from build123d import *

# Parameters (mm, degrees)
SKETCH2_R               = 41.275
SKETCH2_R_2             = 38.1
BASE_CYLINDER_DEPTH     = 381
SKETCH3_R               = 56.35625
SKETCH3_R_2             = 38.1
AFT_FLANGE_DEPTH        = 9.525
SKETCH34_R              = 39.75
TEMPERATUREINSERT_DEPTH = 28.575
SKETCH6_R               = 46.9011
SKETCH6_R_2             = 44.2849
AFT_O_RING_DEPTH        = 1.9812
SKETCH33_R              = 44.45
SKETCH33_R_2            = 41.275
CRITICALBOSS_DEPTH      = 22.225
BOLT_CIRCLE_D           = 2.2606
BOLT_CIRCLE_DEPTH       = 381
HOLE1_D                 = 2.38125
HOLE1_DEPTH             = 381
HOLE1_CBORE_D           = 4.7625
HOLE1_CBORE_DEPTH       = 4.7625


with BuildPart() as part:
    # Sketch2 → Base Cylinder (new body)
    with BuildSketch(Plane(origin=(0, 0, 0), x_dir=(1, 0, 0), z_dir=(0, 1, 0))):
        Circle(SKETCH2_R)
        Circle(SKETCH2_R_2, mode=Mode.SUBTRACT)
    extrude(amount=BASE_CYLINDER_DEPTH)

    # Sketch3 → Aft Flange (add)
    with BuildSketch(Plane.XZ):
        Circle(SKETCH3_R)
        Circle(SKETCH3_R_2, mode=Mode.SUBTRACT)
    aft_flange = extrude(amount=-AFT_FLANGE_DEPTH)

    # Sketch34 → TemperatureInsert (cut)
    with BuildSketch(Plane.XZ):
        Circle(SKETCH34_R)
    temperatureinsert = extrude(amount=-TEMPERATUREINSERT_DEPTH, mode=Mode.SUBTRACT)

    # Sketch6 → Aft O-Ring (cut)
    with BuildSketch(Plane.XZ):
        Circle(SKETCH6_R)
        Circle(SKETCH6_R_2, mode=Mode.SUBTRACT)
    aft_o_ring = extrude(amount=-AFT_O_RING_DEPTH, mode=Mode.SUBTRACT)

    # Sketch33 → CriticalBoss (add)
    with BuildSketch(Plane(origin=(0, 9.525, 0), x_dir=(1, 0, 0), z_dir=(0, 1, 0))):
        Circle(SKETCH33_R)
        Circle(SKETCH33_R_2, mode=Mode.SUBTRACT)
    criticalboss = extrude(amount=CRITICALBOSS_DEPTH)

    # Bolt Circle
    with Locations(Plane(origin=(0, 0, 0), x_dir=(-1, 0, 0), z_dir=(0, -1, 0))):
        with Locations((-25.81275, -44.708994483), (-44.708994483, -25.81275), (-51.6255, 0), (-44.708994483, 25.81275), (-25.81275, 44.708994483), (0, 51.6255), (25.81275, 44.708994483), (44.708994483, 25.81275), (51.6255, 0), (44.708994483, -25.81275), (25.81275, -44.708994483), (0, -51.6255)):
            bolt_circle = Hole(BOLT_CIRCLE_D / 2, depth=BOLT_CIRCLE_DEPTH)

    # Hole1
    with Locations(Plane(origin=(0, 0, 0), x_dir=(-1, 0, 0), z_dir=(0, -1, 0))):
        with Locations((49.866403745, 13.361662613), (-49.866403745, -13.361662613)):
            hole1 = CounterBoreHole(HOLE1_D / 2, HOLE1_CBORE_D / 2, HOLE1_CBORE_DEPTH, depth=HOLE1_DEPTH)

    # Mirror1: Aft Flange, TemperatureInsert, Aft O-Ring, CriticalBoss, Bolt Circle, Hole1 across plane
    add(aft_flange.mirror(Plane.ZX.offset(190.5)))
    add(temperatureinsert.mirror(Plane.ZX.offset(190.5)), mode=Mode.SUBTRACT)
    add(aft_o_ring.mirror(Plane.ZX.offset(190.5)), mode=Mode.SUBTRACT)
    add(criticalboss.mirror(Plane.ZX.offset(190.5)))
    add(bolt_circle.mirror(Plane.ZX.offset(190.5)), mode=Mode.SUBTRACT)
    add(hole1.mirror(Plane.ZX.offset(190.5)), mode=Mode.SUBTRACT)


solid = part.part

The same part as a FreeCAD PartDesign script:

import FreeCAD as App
import Part
import Sketcher
Q = App.Units.Quantity

doc = App.newDocument("Part")
params = doc.addObject("Spreadsheet::Sheet", "Params")
for row, (alias, value) in enumerate([
    ("sketch1_diameter", "3 in"),
    ("sketch1_diameter2", "3.25 in"),
    ("pad1_length", "15 in"),
    ("sketch2_diameter", "3 in"),
    ("sketch2_diameter2", "4.4375 in"),
    ("pad2_length", "0.375 in"),
    ("pocket1_length", "1.125 in"),
    ("sketch4_diameter", "3.693 in"),
    ("sketch4_diameter2", "3.487 in"),
    ("pocket2_length", "0.078 in"),
    ("sketch5_diameter", "3.5 in"),
    ("sketch5_diameter2", "3.25 in"),
    ("pad3_length", "0.875 in"),
    ("sketch6_diameter", "0.089 in"),
    ("hole_diameter", "0.089 in"),
    ("hole_depth", "15 in"),
    ("sketch7_diameter", "0.09375 in"),
    ("hole2_diameter", "0.09375 in"),
    ("hole2_depth", "15 in"),
    ("hole2_cbore_diameter", "0.1875 in"),
    ("hole2_cbore_depth", "0.1875 in"),
], start=1):
    params.set(f"A{row}", alias)
    params.set(f"B{row}", "=" + value)
    params.setAlias(f"B{row}", alias)

body = doc.addObject("PartDesign::Body", "Body")

# Sketch on XZ plane
sketch1 = doc.addObject("Sketcher::SketchObject", "Sketch")
body.addObject(sketch1)
sketch1.AttachmentSupport = (doc.XZ_Plane, [""])
sketch1.MapMode = "FlatFace"
sketch1.addGeometry(Part.Circle(App.Vector(0, 0, 0), App.Vector(0, 0, 1), 41), False)
sketch1.addGeometry(Part.Circle(App.Vector(0, 0, 0), App.Vector(0, 0, 1), 38), False)
sketch1.addConstraint(Sketcher.Constraint("Coincident", 0, 3, -1, 1))
sketch1.addConstraint(Sketcher.Constraint("Coincident", 1, 3, -1, 1))
sketch1.addConstraint(Sketcher.Constraint("Diameter", 1, Q("3 in")))
sketch1.addConstraint(Sketcher.Constraint("Diameter", 0, Q("3.25 in")))
sketch1.setExpression("Constraints[2]", "Params.sketch1_diameter")
sketch1.setExpression("Constraints[3]", "Params.sketch1_diameter2")
pad1 = doc.addObject("PartDesign::Pad", "Pad")
body.addObject(pad1)
pad1.Profile = sketch1
pad1.setExpression("Length", "Params.pad1_length")
pad1.Reversed = True

# Sketch on XZ plane
sketch2 = doc.addObject("Sketcher::SketchObject", "Sketch001")
body.addObject(sketch2)
sketch2.AttachmentSupport = (doc.XZ_Plane, [""])
sketch2.MapMode = "FlatFace"
sketch2.addGeometry(Part.Circle(App.Vector(0, 0, 0), App.Vector(0, 0, 1), 56), False)
sketch2.addGeometry(Part.Circle(App.Vector(0, 0, 0), App.Vector(0, 0, 1), 38), False)
sketch2.addConstraint(Sketcher.Constraint("Coincident", 0, 3, -1, 1))
sketch2.addConstraint(Sketcher.Constraint("Coincident", 1, 3, -1, 1))
sketch2.addConstraint(Sketcher.Constraint("Diameter", 1, Q("3 in")))
sketch2.addConstraint(Sketcher.Constraint("Diameter", 0, Q("4.4375 in")))
sketch2.setExpression("Constraints[2]", "Params.sketch2_diameter")
sketch2.setExpression("Constraints[3]", "Params.sketch2_diameter2")
pad2 = doc.addObject("PartDesign::Pad", "Pad001")
body.addObject(pad2)
pad2.Profile = sketch2
pad2.setExpression("Length", "Params.pad2_length")
pad2.Reversed = True

# Sketch on XZ plane
sketch3 = doc.addObject("Sketcher::SketchObject", "Sketch002")
body.addObject(sketch3)
sketch3.AttachmentSupport = (doc.XZ_Plane, [""])
sketch3.MapMode = "FlatFace"
sketch3.addGeometry(Part.Circle(App.Vector(0, 0, 0), App.Vector(0, 0, 1), 40), False)
sketch3.addConstraint(Sketcher.Constraint("Coincident", 0, 3, -1, 1))
sketch3.addConstraint(Sketcher.Constraint("Diameter", 0, Q("79.5 mm")))
pocket1 = doc.addObject("PartDesign::Pocket", "Pocket")
body.addObject(pocket1)
pocket1.Profile = sketch3
pocket1.setExpression("Length", "Params.pocket1_length")

# Sketch on XZ plane
sketch4 = doc.addObject("Sketcher::SketchObject", "Sketch003")
body.addObject(sketch4)
sketch4.AttachmentSupport = (doc.XZ_Plane, [""])
sketch4.MapMode = "FlatFace"
sketch4.addGeometry(Part.Circle(App.Vector(0, 0, 0), App.Vector(0, 0, 1), 47), False)
sketch4.addGeometry(Part.Circle(App.Vector(0, 0, 0), App.Vector(0, 0, 1), 44), False)
sketch4.addConstraint(Sketcher.Constraint("Coincident", 0, 3, -1, 1))
sketch4.addConstraint(Sketcher.Constraint("Coincident", 1, 3, -1, 1))
sketch4.addConstraint(Sketcher.Constraint("Diameter", 0, Q("3.693 in")))
sketch4.addConstraint(Sketcher.Constraint("Diameter", 1, Q("3.487 in")))
sketch4.setExpression("Constraints[2]", "Params.sketch4_diameter")
sketch4.setExpression("Constraints[3]", "Params.sketch4_diameter2")
pocket2 = doc.addObject("PartDesign::Pocket", "Pocket001")
body.addObject(pocket2)
pocket2.Profile = sketch4
pocket2.setExpression("Length", "Params.pocket2_length")

# Sketch on XZ plane
sketch5 = doc.addObject("Sketcher::SketchObject", "Sketch004")
body.addObject(sketch5)
sketch5.AttachmentSupport = (doc.XZ_Plane, [""])
sketch5.MapMode = "FlatFace"
sketch5.AttachmentOffset = App.Placement(App.Vector(0, 0, -0.375 * 25.4), App.Rotation())
sketch5.addGeometry(Part.Circle(App.Vector(0, 0, 0), App.Vector(0, 0, 1), 44), False)
sketch5.addGeometry(Part.Circle(App.Vector(0, 0, 0), App.Vector(0, 0, 1), 41), False)
sketch5.addConstraint(Sketcher.Constraint("Coincident", 0, 3, -1, 1))
sketch5.addConstraint(Sketcher.Constraint("Coincident", 1, 3, -1, 1))
sketch5.addConstraint(Sketcher.Constraint("Diameter", 0, Q("3.5 in")))
sketch5.addConstraint(Sketcher.Constraint("Diameter", 1, Q("3.25 in")))
sketch5.setExpression("Constraints[2]", "Params.sketch5_diameter")
sketch5.setExpression("Constraints[3]", "Params.sketch5_diameter2")
pad3 = doc.addObject("PartDesign::Pad", "Pad002")
body.addObject(pad3)
pad3.Profile = sketch5
pad3.setExpression("Length", "Params.pad3_length")
pad3.Reversed = True

# Sketch on XZ plane
sketch6 = doc.addObject("Sketcher::SketchObject", "Sketch005")
body.addObject(sketch6)
sketch6.AttachmentSupport = (doc.XZ_Plane, [""])
sketch6.MapMode = "FlatFace"
sketch6.addGeometry(Part.Circle(App.Vector(25.8, 44.7, 0), App.Vector(0, 0, 1), 1.1), False)
sketch6.addGeometry(Part.Circle(App.Vector(44.7, 25.8, 0), App.Vector(0, 0, 1), 1.1), False)
sketch6.addGeometry(Part.Circle(App.Vector(51.6, 0, 0), App.Vector(0, 0, 1), 1.1), False)
sketch6.addGeometry(Part.Circle(App.Vector(44.7, -25.8, 0), App.Vector(0, 0, 1), 1.1), False)
sketch6.addGeometry(Part.Circle(App.Vector(25.8, -44.7, 0), App.Vector(0, 0, 1), 1.1), False)
sketch6.addGeometry(Part.Circle(App.Vector(0, -51.6, 0), App.Vector(0, 0, 1), 1.1), False)
sketch6.addGeometry(Part.Circle(App.Vector(-25.8, -44.7, 0), App.Vector(0, 0, 1), 1.1), False)
sketch6.addGeometry(Part.Circle(App.Vector(-44.7, -25.8, 0), App.Vector(0, 0, 1), 1.1), False)
sketch6.addGeometry(Part.Circle(App.Vector(-51.6, 0, 0), App.Vector(0, 0, 1), 1.1), False)
sketch6.addGeometry(Part.Circle(App.Vector(-44.7, 25.8, 0), App.Vector(0, 0, 1), 1.1), False)
sketch6.addGeometry(Part.Circle(App.Vector(-25.8, 44.7, 0), App.Vector(0, 0, 1), 1.1), False)
sketch6.addGeometry(Part.Circle(App.Vector(0, 51.6, 0), App.Vector(0, 0, 1), 1.1), False)
sketch6.addConstraint(Sketcher.Constraint("Equal", 0, 1))
sketch6.addConstraint(Sketcher.Constraint("Equal", 1, 2))
sketch6.addConstraint(Sketcher.Constraint("Equal", 2, 3))
sketch6.addConstraint(Sketcher.Constraint("Equal", 3, 4))
sketch6.addConstraint(Sketcher.Constraint("Equal", 4, 5))
sketch6.addConstraint(Sketcher.Constraint("Equal", 5, 6))
sketch6.addConstraint(Sketcher.Constraint("Equal", 6, 7))
sketch6.addConstraint(Sketcher.Constraint("Equal", 7, 8))
sketch6.addConstraint(Sketcher.Constraint("Equal", 8, 9))
sketch6.addConstraint(Sketcher.Constraint("Equal", 9, 10))
sketch6.addConstraint(Sketcher.Constraint("Equal", 10, 11))
sketch6.addConstraint(Sketcher.Constraint("Symmetric", 0, 3, 6, 3, -1, 1))
sketch6.addConstraint(Sketcher.Constraint("Symmetric", 1, 3, 7, 3, -1, 1))
sketch6.addConstraint(Sketcher.Constraint("Symmetric", 2, 3, 8, 3, -1, 1))
sketch6.addConstraint(Sketcher.Constraint("Symmetric", 3, 3, 9, 3, -1, 1))
sketch6.addConstraint(Sketcher.Constraint("Symmetric", 4, 3, 10, 3, -1, 1))
sketch6.addConstraint(Sketcher.Constraint("Symmetric", 5, 3, 11, 3, -1, 1))
sketch6.addConstraint(Sketcher.Constraint("Symmetric", 4, 3, 6, 3, -2))
sketch6.addConstraint(Sketcher.Constraint("Symmetric", 3, 3, 7, 3, -2))
sketch6.addConstraint(Sketcher.Constraint("PointOnObject", 2, 3, -1))
sketch6.addConstraint(Sketcher.Constraint("PointOnObject", 5, 3, -2))
sketch6.addConstraint(Sketcher.Constraint("Diameter", 0, Q("0.089 in")))
sketch6.addConstraint(Sketcher.Constraint("DistanceX", -1, 1, 2, 3, Q("2.0325 in")))
sketch6.addConstraint(Sketcher.Constraint("DistanceY", 5, 3, -1, 1, Q("2.0325 in")))
sketch6.addConstraint(Sketcher.Constraint("DistanceY", 3, 3, 1, 3, Q("2.0325 in")))
sketch6.addConstraint(Sketcher.Constraint("DistanceX", 6, 3, 4, 3, Q("2.0325 in")))
sketch6.addConstraint(Sketcher.Constraint("DistanceY", 4, 3, 0, 3, Q("89.417989 mm")))
sketch6.addConstraint(Sketcher.Constraint("DistanceX", 7, 3, 3, 3, Q("89.417989 mm")))
sketch6.setExpression("Constraints[21]", "Params.sketch6_diameter")
doc.recompute()
hole = doc.addObject("PartDesign::Hole", "Hole")
body.addObject(hole)
hole.Profile = sketch6
hole.ThreadType = "None"
hole.setExpression("Diameter", "Params.hole_diameter")
hole.DepthType = "Dimension"
hole.setExpression("Depth", "Params.hole_depth")
hole.DrillPoint = "Flat"

# Sketch on XZ plane
sketch7 = doc.addObject("Sketcher::SketchObject", "Sketch006")
body.addObject(sketch7)
sketch7.AttachmentSupport = (doc.XZ_Plane, [""])
sketch7.MapMode = "FlatFace"
sketch7.addGeometry(Part.Circle(App.Vector(-49.9, -13.4, 0), App.Vector(0, 0, 1), 1.2), False)
sketch7.addGeometry(Part.Circle(App.Vector(49.9, 13.4, 0), App.Vector(0, 0, 1), 1.2), False)
sketch7.addConstraint(Sketcher.Constraint("Equal", 0, 1))
sketch7.addConstraint(Sketcher.Constraint("Symmetric", 0, 3, 1, 3, -1, 1))
sketch7.addConstraint(Sketcher.Constraint("Diameter", 0, Q("0.09375 in")))
sketch7.addConstraint(Sketcher.Constraint("DistanceX", 0, 3, -1, 1, Q("49.866404 mm")))
sketch7.addConstraint(Sketcher.Constraint("DistanceY", 0, 3, -1, 1, Q("13.361663 mm")))
sketch7.setExpression("Constraints[2]", "Params.sketch7_diameter")
doc.recompute()
hole2 = doc.addObject("PartDesign::Hole", "Hole001")
body.addObject(hole2)
hole2.Profile = sketch7
hole2.ThreadType = "None"
hole2.setExpression("Diameter", "Params.hole2_diameter")
hole2.DepthType = "Dimension"
hole2.setExpression("Depth", "Params.hole2_depth")
hole2.DrillPoint = "Flat"
hole2.HoleCutType = "Counterbore"
hole2.setExpression("HoleCutDiameter", "Params.hole2_cbore_diameter")
hole2.setExpression("HoleCutDepth", "Params.hole2_cbore_depth")
doc.recompute()

datumplane = doc.addObject("PartDesign::Plane", "DatumPlane")
body.addObject(datumplane)
datumplane.AttachmentSupport = (doc.XZ_Plane, [""])
datumplane.MapMode = "FlatFace"
datumplane.AttachmentOffset = App.Placement(App.Vector(0, 0, -7.5 * 25.4), App.Rotation())
mirrored = doc.addObject("PartDesign::Mirrored", "Mirrored")
body.addObject(mirrored)
mirrored.Originals = [pad2, pocket1, pocket2, pad3, hole, hole2]
mirrored.MirrorPlane = (datumplane, [""])
body.Tip = mirrored

doc.recompute()
